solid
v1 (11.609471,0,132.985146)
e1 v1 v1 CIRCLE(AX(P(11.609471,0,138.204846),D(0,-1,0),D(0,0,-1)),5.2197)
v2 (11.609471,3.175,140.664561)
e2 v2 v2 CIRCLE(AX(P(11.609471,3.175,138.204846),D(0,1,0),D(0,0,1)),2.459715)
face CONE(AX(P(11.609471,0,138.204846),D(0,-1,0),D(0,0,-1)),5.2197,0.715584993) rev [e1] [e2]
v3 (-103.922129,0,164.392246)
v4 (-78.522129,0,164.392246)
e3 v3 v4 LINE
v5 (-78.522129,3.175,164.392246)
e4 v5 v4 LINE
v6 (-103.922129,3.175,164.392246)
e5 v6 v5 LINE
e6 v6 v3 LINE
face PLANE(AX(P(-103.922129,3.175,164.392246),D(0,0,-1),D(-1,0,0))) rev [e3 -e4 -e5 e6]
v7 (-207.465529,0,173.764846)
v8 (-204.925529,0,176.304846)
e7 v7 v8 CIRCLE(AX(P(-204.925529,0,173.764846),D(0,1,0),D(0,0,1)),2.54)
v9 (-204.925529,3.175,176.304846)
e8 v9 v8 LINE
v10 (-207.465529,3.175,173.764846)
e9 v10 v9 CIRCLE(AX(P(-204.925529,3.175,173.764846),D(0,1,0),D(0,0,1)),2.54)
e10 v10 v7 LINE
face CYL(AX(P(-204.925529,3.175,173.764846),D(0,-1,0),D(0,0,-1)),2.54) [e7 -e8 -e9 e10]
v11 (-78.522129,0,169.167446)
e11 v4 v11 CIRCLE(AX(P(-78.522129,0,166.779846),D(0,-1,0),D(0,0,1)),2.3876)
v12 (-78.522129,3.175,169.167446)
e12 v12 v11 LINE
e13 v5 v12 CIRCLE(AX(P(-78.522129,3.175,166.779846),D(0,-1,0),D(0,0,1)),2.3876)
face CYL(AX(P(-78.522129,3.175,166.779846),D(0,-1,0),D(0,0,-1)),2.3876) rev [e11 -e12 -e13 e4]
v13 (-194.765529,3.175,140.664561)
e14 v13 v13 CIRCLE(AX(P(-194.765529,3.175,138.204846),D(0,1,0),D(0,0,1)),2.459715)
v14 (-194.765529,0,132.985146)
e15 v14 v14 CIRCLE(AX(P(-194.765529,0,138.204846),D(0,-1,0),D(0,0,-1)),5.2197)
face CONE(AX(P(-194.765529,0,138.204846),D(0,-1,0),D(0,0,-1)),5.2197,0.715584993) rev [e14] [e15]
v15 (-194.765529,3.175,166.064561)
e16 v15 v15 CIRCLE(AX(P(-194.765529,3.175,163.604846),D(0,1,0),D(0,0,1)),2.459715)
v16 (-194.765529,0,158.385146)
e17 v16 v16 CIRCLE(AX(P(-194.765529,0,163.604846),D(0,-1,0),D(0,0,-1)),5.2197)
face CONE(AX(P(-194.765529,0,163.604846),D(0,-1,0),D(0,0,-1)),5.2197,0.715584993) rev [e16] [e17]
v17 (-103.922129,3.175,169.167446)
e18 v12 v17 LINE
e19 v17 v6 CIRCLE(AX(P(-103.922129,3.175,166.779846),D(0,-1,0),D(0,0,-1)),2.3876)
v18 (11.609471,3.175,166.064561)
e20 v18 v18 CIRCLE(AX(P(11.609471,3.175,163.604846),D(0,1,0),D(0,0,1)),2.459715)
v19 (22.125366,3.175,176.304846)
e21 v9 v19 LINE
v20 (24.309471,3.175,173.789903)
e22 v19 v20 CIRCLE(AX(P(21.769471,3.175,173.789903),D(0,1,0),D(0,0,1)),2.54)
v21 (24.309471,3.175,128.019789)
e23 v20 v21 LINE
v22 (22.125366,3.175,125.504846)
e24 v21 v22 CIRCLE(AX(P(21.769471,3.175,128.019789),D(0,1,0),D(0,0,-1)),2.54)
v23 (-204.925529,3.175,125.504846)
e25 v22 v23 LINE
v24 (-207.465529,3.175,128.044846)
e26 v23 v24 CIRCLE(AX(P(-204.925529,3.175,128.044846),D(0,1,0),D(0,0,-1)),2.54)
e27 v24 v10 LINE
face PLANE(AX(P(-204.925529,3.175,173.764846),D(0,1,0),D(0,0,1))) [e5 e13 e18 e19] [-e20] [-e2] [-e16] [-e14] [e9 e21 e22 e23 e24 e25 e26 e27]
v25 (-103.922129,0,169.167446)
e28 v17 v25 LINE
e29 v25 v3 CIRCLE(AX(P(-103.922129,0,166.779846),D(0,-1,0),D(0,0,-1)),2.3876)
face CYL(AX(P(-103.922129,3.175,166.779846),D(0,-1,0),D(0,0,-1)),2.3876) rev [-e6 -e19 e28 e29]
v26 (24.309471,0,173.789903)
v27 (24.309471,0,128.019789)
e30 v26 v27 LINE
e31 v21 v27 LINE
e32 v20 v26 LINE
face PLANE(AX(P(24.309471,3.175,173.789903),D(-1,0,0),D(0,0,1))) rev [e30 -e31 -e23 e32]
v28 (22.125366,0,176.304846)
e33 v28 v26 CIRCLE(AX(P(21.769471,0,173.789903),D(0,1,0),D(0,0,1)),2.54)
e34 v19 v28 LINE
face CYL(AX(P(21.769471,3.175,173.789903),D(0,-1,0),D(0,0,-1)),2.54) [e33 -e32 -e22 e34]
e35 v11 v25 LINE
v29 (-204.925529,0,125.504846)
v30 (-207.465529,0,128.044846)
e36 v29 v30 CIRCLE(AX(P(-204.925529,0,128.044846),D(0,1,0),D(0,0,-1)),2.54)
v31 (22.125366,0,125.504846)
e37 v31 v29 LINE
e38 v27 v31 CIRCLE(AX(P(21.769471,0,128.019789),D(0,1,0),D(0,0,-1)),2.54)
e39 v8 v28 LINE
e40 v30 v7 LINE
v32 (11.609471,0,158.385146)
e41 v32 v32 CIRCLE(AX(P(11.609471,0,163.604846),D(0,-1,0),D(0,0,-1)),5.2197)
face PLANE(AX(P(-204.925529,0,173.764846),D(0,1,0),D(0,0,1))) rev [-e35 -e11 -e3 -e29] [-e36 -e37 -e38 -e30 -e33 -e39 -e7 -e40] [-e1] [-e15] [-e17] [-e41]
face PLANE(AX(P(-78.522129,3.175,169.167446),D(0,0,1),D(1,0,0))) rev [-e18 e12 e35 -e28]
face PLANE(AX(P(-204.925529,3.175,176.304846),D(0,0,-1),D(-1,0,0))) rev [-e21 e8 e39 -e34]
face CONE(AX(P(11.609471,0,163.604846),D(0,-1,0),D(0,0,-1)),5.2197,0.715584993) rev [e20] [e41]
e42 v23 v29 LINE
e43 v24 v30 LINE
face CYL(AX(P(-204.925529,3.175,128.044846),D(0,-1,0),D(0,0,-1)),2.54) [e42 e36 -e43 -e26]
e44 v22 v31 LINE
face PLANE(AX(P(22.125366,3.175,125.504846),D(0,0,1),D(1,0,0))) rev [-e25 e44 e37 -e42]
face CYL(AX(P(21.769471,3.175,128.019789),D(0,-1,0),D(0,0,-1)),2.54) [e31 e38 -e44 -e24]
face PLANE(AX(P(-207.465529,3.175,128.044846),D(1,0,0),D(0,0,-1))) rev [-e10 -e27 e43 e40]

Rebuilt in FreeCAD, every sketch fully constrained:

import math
import FreeCAD as App
import Part
import Sketcher
from FreeCAD import Vector
Q = App.Units.Quantity

doc = App.newDocument("Part")
params = doc.addObject("Spreadsheet::Sheet", "Params")
for row, (alias, value) in enumerate([
    ("sketch1_radius", "0.1 in"),
    ("sketch1_height", "1.8 in"),
    ("pad1_length", "0.125 in"),
    ("sketch2_width", "0.125 in"),
    ("groove_angle", "360 deg"),
    ("linearpattern_pitch", "1 in"),
    ("linearpattern2_pitch", "207.932202 mm"),
    ("linearpattern3_pitch", "8.125 in"),
    ("sketch3_width", "1 in"),
    ("sketch3_radius", "0.094 in"),
    ("pocket1_length", "0.125 in"),
], start=1):
    params.set(f"A{row}", alias)
    params.set(f"B{row}", "=" + value)
    params.setAlias(f"B{row}", alias)

body = doc.addObject("PartDesign::Body", "Body")

# Sketch on XZ plane
sketch1 = doc.addObject("Sketcher::SketchObject", "Sketch")
body.addObject(sketch1)
sketch1.AttachmentSupport = (doc.XZ_Plane, [""])
sketch1.MapMode = "FlatFace"
sketch1.addGeometry([
    Part.LineSegment(Vector(22.1, 125.5, 0), Vector(-204.9, 125.5, 0)),  # 0
    Part.ArcOfCircle(Part.Circle(Vector(-204.9, 128, 0), Vector(0, 0, 1), 2.5), math.radians(-180), math.radians(-90)),  # 1
    Part.LineSegment(Vector(-207.5, 128, 0), Vector(-207.5, 173.8, 0)),  # 2
    Part.ArcOfCircle(Part.Circle(Vector(-204.9, 173.8, 0), Vector(0, 0, 1), 2.5), math.radians(90), math.radians(180)),  # 3
    Part.LineSegment(Vector(-204.9, 176.3, 0), Vector(22.1, 176.3, 0)),  # 4
    Part.ArcOfCircle(Part.Circle(Vector(21.8, 173.8, 0), Vector(0, 0, 1), 2.5), math.radians(0), math.radians(82)),  # 5
    Part.LineSegment(Vector(24.3, 173.8, 0), Vector(24.3, 128, 0)),  # 6
    Part.ArcOfCircle(Part.Circle(Vector(21.8, 128, 0), Vector(0, 0, 1), 2.5), math.radians(-82), math.radians(0)),  # 7
], False)
sketch1.addConstraint([
    Sketcher.Constraint("Tangent", 0, 2, 1, 2),
    Sketcher.Constraint("Tangent", 1, 1, 2, 1),
    Sketcher.Constraint("Tangent", 2, 2, 3, 2),
    Sketcher.Constraint("Tangent", 3, 1, 4, 1),
    Sketcher.Constraint("Coincident", 4, 2, 5, 2),
    Sketcher.Constraint("Tangent", 5, 1, 6, 1),
    Sketcher.Constraint("Tangent", 6, 2, 7, 2),
    Sketcher.Constraint("Coincident", 7, 1, 0, 1),
    Sketcher.Constraint("Horizontal", 0),
    Sketcher.Constraint("Vertical", 2),
    Sketcher.Constraint("Horizontal", 4),
    Sketcher.Constraint("Vertical", 6),
    Sketcher.Constraint("Equal", 1, 3),
    Sketcher.Constraint("Equal", 3, 5),
    Sketcher.Constraint("Equal", 5, 7),
    Sketcher.Constraint("Vertical", 4, 2, 7, 1),
    Sketcher.Constraint("Radius", 1, Q("0.1 in")),
    Sketcher.Constraint("DistanceY", 2, 1, 2, 2, Q("1.8 in")),
    Sketcher.Constraint("DistanceX", 3, 3, 5, 3, Q("8.925 in")),
    Sketcher.Constraint("DistanceX", 0, 2, 0, 1, 227.050895),
    Sketcher.Constraint("DistanceX", 1, 3, -1, 1, 204.925529),
    Sketcher.Constraint("DistanceY", -1, 1, 7, 3, 128.019789),
])
sketch1.setExpression("Constraints[16]", "Params.sketch1_radius")
sketch1.setExpression("Constraints[17]", "Params.sketch1_height")
pad1 = doc.addObject("PartDesign::Pad", "Pad")
body.addObject(pad1)
pad1.Profile = sketch1
pad1.setExpression("Length", "Params.pad1_length")
pad1.Reversed = True

# Sketch on YZ plane
sketch2 = doc.addObject("Sketcher::SketchObject", "Sketch001")
body.addObject(sketch2)
sketch2.AttachmentSupport = (doc.YZ_Plane, [""])
sketch2.MapMode = "FlatFace"
sketch2.AttachmentOffset = App.Placement(Vector(0, 0, 11.609471), App.Rotation())
sketch2.addGeometry([
    Part.LineSegment(Vector(3.175, 163.6048, 0), Vector(0, 163.6048, 0)),  # 0
    Part.LineSegment(Vector(0, 163.6048, 0), Vector(0, 158.3851, 0)),  # 1
    Part.LineSegment(Vector(0, 158.3851, 0), Vector(3.1776, 161.1474, 0)),  # 2
    Part.LineSegment(Vector(3.1776, 161.1474, 0), Vector(3.175, 161.1474, 0)),  # 3
    Part.LineSegment(Vector(3.175, 161.1474, 0), Vector(3.175, 163.6048, 0)),  # 4
], False)
sketch2.addGeometry(Part.LineSegment(Vector(0, 163.6048, 0), Vector(3.1776, 163.6048, 0)), True)  # axis
sketch2.addConstraint([
    Sketcher.Constraint("Coincident", 0, 2, 1, 1),
    Sketcher.Constraint("Coincident", 1, 2, 2, 1),
    Sketcher.Constraint("Coincident", 2, 2, 3, 1),
    Sketcher.Constraint("Coincident", 3, 2, 4, 1),
    Sketcher.Constraint("Coincident", 4, 2, 0, 1),
    Sketcher.Constraint("Horizontal", 0),
    Sketcher.Constraint("Vertical", 1),
    Sketcher.Constraint("Horizontal", 3),
    Sketcher.Constraint("Vertical", 4),
    Sketcher.Constraint("Horizontal", 5),
    Sketcher.Constraint("Coincident", 5, 1, 0, 2),
    Sketcher.Constraint("PointOnObject", 0, 2, -2),
    Sketcher.Constraint("Vertical", 2, 2, 5, 2),
    Sketcher.Constraint("Angle", 2, Q("41 deg")),
    Sketcher.Constraint("DistanceX", 0, 2, 0, 1, Q("0.125 in")),
    Sketcher.Constraint("DistanceY", 1, 2, 1, 1, Q("0.2055 in")),
    Sketcher.Constraint("DistanceY", 4, 1, 4, 2, 2.45745),
    Sketcher.Constraint("DistanceY", -1, 1, 0, 2, 163.604846),
])
sketch2.setExpression("Constraints[14]", "Params.sketch2_width")
groove = doc.addObject("PartDesign::Groove", "Groove")
body.addObject(groove)
groove.Profile = sketch2
groove.ReferenceAxis = (sketch2, ["Axis0"])
groove.setExpression("Angle", "Params.groove_angle")
doc.recompute()

linearpattern = doc.addObject("PartDesign::LinearPattern", "LinearPattern")
body.addObject(linearpattern)
linearpattern.Originals = [groove]
linearpattern.Direction = (doc.Z_Axis, [""])
linearpattern.Mode = "offset"
linearpattern.setExpression("Offset", "Params.linearpattern_pitch")
linearpattern.Occurrences = 2
linearpattern.Reversed = True
body.Tip = linearpattern
doc.recompute()

datumline = doc.addObject("PartDesign::Line", "DatumLine")
body.addObject(datumline)
datumline.Placement = App.Placement(Vector(0, 0, 0), App.Rotation(Vector(0, 0, 1), Vector(-0.992511011, 0, -0.122155201)))
linearpattern2 = doc.addObject("PartDesign::LinearPattern", "LinearPattern001")
body.addObject(linearpattern2)
linearpattern2.Originals = [groove]
linearpattern2.Direction = (datumline, [""])
linearpattern2.Mode = "offset"
linearpattern2.setExpression("Offset", "Params.linearpattern2_pitch")
linearpattern2.Occurrences = 2
body.Tip = linearpattern2
doc.recompute()

linearpattern3 = doc.addObject("PartDesign::LinearPattern", "LinearPattern002")
body.addObject(linearpattern3)
linearpattern3.Originals = [groove]
linearpattern3.Direction = (doc.X_Axis, [""])
linearpattern3.Mode = "offset"
linearpattern3.setExpression("Offset", "Params.linearpattern3_pitch")
linearpattern3.Occurrences = 2
linearpattern3.Reversed = True
body.Tip = linearpattern3

# Sketch on XZ plane
sketch3 = doc.addObject("Sketcher::SketchObject", "Sketch002")
body.addObject(sketch3)
sketch3.AttachmentSupport = (doc.XZ_Plane, [""])
sketch3.MapMode = "FlatFace"
sketch3.addGeometry([
    Part.LineSegment(Vector(-78.5, 169.2, 0), Vector(-103.9, 169.2, 0)),
    Part.ArcOfCircle(Part.Circle(Vector(-103.9, 166.8, 0), Vector(0, 0, 1), 2.4), math.radians(90), math.radians(270)),
    Part.LineSegment(Vector(-103.9, 164.4, 0), Vector(-78.5, 164.4, 0)),
    Part.ArcOfCircle(Part.Circle(Vector(-78.5, 166.8, 0), Vector(0, 0, 1), 2.4), math.radians(-90), math.radians(90)),
], False)
sketch3.addConstraint([
    Sketcher.Constraint("Tangent", 0, 2, 1, 1),
    Sketcher.Constraint("Tangent", 1, 2, 2, 1),
    Sketcher.Constraint("Tangent", 2, 2, 3, 1),
    Sketcher.Constraint("Tangent", 3, 2, 0, 1),
    Sketcher.Constraint("Horizontal", 0),
    Sketcher.Constraint("Horizontal", 2),
    Sketcher.Constraint("DistanceX", 0, 2, 0, 1, Q("1 in")),
    Sketcher.Constraint("Radius", 1, Q("0.094 in")),
    Sketcher.Constraint("DistanceX", 1, 3, -1, 1, 103.922129),
    Sketcher.Constraint("DistanceY", -1, 1, 1, 3, 166.779846),
])
sketch3.setExpression("Constraints[6]", "Params.sketch3_width")
sketch3.setExpression("Constraints[7]", "Params.sketch3_radius")
pocket1 = doc.addObject("PartDesign::Pocket", "Pocket")
body.addObject(pocket1)
pocket1.Profile = sketch3
pocket1.setExpression("Length", "Params.pocket1_length")

doc.recompute()
